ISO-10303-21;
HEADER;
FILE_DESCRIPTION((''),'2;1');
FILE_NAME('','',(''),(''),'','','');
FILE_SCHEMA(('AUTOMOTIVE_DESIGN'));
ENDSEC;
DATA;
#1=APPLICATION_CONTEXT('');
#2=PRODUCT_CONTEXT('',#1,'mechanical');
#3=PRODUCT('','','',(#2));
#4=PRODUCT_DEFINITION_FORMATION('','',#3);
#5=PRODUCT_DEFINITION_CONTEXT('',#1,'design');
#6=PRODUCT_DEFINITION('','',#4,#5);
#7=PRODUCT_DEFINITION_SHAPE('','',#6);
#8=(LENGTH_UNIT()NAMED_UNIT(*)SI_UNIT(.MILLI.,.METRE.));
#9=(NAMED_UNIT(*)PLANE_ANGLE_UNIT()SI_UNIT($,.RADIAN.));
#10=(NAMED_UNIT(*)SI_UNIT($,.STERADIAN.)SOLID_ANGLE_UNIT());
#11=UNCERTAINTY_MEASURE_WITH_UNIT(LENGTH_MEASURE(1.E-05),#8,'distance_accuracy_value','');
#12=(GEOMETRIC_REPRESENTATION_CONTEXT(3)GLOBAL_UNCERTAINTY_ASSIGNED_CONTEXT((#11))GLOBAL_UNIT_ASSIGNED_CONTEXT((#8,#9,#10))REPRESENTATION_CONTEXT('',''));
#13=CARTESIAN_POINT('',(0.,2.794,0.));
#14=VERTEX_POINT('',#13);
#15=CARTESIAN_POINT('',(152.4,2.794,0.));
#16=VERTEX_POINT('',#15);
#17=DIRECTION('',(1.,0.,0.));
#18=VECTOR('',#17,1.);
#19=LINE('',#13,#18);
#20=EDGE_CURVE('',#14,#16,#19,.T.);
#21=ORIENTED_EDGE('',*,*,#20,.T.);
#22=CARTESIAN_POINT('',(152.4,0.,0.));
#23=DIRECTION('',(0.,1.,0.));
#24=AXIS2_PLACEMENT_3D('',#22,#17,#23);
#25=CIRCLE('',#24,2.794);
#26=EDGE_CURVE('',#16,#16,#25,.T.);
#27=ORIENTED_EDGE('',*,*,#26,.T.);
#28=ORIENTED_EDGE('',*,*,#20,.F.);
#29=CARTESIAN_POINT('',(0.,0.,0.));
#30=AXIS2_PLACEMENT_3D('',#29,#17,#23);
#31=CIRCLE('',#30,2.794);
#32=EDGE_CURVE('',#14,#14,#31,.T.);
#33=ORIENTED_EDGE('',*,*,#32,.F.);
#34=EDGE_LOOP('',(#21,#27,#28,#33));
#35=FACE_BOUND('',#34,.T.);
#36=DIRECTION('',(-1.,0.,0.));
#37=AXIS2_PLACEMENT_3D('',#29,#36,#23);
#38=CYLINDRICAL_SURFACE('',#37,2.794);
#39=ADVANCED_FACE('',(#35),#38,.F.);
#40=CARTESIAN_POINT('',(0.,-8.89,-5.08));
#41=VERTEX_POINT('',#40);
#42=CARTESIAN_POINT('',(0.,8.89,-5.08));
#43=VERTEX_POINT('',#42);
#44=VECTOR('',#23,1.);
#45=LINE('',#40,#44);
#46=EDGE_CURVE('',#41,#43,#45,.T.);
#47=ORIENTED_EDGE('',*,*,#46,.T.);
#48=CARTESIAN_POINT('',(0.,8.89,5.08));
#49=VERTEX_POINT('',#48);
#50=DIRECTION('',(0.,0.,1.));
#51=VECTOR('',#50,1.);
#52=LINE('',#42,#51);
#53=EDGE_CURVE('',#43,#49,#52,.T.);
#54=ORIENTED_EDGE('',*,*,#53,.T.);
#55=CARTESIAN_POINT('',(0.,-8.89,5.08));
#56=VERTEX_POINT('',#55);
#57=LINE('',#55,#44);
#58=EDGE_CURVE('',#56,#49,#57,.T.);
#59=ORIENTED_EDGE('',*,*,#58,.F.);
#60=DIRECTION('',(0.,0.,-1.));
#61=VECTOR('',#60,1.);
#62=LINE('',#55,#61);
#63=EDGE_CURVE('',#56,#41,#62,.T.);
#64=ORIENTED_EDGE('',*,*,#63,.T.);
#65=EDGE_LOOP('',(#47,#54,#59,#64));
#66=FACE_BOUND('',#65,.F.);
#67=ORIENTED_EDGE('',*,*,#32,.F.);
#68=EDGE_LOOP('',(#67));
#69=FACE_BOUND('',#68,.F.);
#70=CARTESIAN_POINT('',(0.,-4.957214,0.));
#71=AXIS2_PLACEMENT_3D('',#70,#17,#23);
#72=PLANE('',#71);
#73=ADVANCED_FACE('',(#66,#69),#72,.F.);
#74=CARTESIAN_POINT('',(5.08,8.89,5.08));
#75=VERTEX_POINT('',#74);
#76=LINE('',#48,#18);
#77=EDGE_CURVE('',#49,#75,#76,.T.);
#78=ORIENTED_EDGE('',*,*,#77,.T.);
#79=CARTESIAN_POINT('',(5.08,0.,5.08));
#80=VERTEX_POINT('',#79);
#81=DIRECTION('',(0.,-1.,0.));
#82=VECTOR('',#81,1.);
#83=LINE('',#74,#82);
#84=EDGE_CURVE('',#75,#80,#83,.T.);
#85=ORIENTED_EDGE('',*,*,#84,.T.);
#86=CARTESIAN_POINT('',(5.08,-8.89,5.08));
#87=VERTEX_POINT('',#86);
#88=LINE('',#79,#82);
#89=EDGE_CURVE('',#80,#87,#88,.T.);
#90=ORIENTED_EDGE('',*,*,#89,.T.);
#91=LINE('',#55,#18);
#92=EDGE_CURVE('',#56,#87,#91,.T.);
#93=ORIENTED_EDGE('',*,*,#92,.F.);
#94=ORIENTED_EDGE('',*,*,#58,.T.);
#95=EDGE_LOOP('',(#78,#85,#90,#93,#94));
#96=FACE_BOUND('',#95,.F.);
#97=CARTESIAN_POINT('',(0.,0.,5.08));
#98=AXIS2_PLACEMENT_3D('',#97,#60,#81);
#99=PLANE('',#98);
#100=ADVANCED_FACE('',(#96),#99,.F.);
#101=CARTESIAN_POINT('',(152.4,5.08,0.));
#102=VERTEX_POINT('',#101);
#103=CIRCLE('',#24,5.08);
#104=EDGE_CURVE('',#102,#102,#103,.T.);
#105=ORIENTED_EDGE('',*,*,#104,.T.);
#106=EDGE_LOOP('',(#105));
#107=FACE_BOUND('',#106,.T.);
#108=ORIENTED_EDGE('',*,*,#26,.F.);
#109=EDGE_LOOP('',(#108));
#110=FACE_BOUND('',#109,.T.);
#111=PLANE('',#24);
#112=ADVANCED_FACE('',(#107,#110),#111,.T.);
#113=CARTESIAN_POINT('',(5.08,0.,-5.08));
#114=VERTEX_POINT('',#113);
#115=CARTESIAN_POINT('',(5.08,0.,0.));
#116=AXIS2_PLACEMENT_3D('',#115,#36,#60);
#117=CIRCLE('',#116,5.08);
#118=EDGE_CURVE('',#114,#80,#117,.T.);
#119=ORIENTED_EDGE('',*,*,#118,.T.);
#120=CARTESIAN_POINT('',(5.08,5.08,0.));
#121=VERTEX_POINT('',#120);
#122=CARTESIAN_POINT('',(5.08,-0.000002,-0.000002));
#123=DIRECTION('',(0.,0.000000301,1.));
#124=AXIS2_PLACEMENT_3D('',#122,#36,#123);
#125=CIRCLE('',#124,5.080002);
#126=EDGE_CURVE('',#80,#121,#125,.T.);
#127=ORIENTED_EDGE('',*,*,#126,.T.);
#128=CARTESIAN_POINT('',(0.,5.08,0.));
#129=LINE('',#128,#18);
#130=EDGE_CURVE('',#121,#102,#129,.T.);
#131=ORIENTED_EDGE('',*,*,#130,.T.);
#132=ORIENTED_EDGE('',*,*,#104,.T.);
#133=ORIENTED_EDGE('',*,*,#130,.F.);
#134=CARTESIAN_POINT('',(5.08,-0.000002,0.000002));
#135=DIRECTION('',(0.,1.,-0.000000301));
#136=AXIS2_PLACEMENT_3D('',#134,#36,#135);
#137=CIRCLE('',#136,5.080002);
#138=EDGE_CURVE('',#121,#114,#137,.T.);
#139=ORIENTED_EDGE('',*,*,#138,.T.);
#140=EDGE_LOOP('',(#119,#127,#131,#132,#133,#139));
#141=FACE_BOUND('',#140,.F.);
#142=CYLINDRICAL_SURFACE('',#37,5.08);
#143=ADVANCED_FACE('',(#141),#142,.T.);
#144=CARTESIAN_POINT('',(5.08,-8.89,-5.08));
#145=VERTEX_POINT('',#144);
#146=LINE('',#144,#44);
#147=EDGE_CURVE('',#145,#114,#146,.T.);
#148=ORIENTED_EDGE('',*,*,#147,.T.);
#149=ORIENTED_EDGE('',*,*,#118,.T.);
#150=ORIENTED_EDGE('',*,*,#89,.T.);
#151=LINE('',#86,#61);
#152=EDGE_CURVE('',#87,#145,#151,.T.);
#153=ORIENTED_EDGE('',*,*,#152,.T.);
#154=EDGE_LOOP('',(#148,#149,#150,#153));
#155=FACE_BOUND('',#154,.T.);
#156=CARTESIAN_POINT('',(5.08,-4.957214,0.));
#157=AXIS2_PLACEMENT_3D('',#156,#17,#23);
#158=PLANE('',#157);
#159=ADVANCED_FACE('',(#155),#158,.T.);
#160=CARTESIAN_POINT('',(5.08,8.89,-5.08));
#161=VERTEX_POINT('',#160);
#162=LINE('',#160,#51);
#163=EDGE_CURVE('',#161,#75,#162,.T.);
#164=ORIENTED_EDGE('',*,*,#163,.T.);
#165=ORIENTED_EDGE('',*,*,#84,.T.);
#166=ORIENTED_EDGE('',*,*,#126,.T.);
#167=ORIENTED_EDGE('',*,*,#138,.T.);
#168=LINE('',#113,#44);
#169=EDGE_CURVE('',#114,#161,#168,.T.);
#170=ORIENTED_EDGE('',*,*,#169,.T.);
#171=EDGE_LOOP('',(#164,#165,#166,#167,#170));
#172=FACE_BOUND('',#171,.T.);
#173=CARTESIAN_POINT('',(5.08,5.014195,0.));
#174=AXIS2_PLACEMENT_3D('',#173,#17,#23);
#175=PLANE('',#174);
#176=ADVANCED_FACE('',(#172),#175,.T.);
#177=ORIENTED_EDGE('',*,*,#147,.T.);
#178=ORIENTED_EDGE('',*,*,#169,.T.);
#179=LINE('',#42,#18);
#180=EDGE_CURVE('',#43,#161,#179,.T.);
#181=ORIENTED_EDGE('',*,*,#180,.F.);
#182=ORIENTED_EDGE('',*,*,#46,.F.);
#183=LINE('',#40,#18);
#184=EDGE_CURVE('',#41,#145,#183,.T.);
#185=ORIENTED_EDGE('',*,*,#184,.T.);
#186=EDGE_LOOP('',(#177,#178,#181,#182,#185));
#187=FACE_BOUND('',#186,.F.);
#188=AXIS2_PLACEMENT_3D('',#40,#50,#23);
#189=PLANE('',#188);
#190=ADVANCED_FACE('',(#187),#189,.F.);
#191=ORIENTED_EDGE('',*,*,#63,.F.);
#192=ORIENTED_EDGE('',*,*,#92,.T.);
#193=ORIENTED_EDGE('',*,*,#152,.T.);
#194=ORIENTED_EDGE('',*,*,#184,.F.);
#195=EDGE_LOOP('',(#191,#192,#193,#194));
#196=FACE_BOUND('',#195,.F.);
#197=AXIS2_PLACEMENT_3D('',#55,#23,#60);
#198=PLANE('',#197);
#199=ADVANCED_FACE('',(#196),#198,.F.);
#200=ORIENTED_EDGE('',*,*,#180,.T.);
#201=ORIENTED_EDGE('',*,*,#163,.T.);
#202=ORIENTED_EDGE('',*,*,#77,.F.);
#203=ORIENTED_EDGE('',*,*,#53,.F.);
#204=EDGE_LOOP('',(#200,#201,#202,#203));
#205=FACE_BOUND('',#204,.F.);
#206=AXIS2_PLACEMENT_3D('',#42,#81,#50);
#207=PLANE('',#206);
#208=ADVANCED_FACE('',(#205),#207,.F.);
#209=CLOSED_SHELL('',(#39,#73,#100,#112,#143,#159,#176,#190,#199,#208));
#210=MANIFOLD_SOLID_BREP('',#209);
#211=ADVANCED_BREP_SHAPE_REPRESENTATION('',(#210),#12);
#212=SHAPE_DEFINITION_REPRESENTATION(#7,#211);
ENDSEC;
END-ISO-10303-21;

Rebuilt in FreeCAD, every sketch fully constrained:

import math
import FreeCAD as App
import Part
import Sketcher
from FreeCAD import Vector
Q = App.Units.Quantity

doc = App.newDocument("Part")
body = doc.addObject("PartDesign::Body", "Body")

sketch1 = body.newObject("Sketcher::SketchObject", "Sketch")
sketch1.AttachmentSupport = (doc.getObject("YZ_Plane"), [""])
sketch1.MapMode = "FlatFace"
sketch1.addGeometry(Part.Circle(Vector(0, 0, 0), Vector(0, 0, 1), 5.08), False)
sketch1.addGeometry(Part.Circle(Vector(0, 0, 0), Vector(0, 0, 1), 2.794), False)
sketch1.addConstraint(Sketcher.Constraint("Coincident", 0, 3, -1, 1))
sketch1.addConstraint(Sketcher.Constraint("Coincident", 1, 3, -1, 1))
sketch1.addConstraint(Sketcher.Constraint("Diameter", 0, Q("0.4 in")))
sketch1.addConstraint(Sketcher.Constraint("Diameter", 1, Q("0.22 in")))
pad1 = body.newObject("PartDesign::Pad", "Pad")
pad1.Profile = sketch1
pad1.Length = Q("6 in")

sketch2 = body.newObject("Sketcher::SketchObject", "Sketch001")
sketch2.AttachmentSupport = (doc.getObject("YZ_Plane"), [""])
sketch2.MapMode = "FlatFace"
sketch2.addGeometry(Part.LineSegment(Vector(-8.89, -5.08, 0), Vector(0, -5.08, 0)), False)
sketch2.addGeometry(Part.ArcOfCircle(Part.Circle(Vector(0, 0, 0), Vector(0, 0, 1), 5.08), math.radians(90), math.radians(270)), False)
sketch2.addGeometry(Part.LineSegment(Vector(0, 5.08, 0), Vector(-8.89, 5.08, 0)), False)
sketch2.addGeometry(Part.LineSegment(Vector(-8.89, 5.08, 0), Vector(-8.89, -5.08, 0)), False)
sketch2.addGeometry(Part.LineSegment(Vector(0, -5.08, 0), Vector(8.89, -5.08, 0)), False)
sketch2.addGeometry(Part.LineSegment(Vector(8.89, -5.08, 0), Vector(8.89, 5.08, 0)), False)
sketch2.addGeometry(Part.LineSegment(Vector(8.89, 5.08, 0), Vector(0, 5.08, 0)), False)
sketch2.addGeometry(Part.ArcOfCircle(Part.Circle(Vector(-0.000002, -0.000002, 0), Vector(0, 0, 1), 5.080002), math.radians(0.000017), math.radians(89.999983)), False)
sketch2.addGeometry(Part.ArcOfCircle(Part.Circle(Vector(-0.000002, 0.000002, 0), Vector(0, 0, 1), 5.080002), math.radians(-89.999983), math.radians(-0.000017)), False)
sketch2.addConstraint(Sketcher.Constraint("Tangent", 0, 2, 1, 2))
sketch2.addConstraint(Sketcher.Constraint("Tangent", 1, 1, 2, 1))
sketch2.addConstraint(Sketcher.Constraint("Coincident", 2, 2, 3, 1))
sketch2.addConstraint(Sketcher.Constraint("Coincident", 3, 2, 0, 1))
sketch2.addConstraint(Sketcher.Constraint("Coincident", 4, 2, 5, 1))
sketch2.addConstraint(Sketcher.Constraint("Coincident", 5, 2, 6, 1))
sketch2.addConstraint(Sketcher.Constraint("Tangent", 6, 2, 7, 2))
sketch2.addConstraint(Sketcher.Constraint("Tangent", 7, 1, 8, 2))
sketch2.addConstraint(Sketcher.Constraint("Tangent", 8, 1, 4, 1))
sketch2.addConstraint(Sketcher.Constraint("Horizontal", 0))
sketch2.addConstraint(Sketcher.Constraint("Horizontal", 2))
sketch2.addConstraint(Sketcher.Constraint("Vertical", 3))
sketch2.addConstraint(Sketcher.Constraint("Horizontal", 4))
sketch2.addConstraint(Sketcher.Constraint("Vertical", 5))
sketch2.addConstraint(Sketcher.Constraint("Horizontal", 6))
sketch2.addConstraint(Sketcher.Constraint("Coincident", 1, 3, -1, 1))
sketch2.addConstraint(Sketcher.Constraint("Coincident", 7, 3, -1, 1))
sketch2.addConstraint(Sketcher.Constraint("Coincident", 8, 1, 0, 2))
sketch2.addConstraint(Sketcher.Constraint("PointOnObject", 7, 1, -1))
sketch2.addConstraint(Sketcher.Constraint("Equal", 2, 4))
sketch2.addConstraint(Sketcher.Constraint("Radius", 1, Q("0.2 in")))
sketch2.addConstraint(Sketcher.Constraint("DistanceX", 0, 1, 0, 2, Q("0.35 in")))
pad2 = body.newObject("PartDesign::Pad", "Pad001")
pad2.Profile = sketch2
pad2.Length = Q("0.2 in")

doc.recompute()
